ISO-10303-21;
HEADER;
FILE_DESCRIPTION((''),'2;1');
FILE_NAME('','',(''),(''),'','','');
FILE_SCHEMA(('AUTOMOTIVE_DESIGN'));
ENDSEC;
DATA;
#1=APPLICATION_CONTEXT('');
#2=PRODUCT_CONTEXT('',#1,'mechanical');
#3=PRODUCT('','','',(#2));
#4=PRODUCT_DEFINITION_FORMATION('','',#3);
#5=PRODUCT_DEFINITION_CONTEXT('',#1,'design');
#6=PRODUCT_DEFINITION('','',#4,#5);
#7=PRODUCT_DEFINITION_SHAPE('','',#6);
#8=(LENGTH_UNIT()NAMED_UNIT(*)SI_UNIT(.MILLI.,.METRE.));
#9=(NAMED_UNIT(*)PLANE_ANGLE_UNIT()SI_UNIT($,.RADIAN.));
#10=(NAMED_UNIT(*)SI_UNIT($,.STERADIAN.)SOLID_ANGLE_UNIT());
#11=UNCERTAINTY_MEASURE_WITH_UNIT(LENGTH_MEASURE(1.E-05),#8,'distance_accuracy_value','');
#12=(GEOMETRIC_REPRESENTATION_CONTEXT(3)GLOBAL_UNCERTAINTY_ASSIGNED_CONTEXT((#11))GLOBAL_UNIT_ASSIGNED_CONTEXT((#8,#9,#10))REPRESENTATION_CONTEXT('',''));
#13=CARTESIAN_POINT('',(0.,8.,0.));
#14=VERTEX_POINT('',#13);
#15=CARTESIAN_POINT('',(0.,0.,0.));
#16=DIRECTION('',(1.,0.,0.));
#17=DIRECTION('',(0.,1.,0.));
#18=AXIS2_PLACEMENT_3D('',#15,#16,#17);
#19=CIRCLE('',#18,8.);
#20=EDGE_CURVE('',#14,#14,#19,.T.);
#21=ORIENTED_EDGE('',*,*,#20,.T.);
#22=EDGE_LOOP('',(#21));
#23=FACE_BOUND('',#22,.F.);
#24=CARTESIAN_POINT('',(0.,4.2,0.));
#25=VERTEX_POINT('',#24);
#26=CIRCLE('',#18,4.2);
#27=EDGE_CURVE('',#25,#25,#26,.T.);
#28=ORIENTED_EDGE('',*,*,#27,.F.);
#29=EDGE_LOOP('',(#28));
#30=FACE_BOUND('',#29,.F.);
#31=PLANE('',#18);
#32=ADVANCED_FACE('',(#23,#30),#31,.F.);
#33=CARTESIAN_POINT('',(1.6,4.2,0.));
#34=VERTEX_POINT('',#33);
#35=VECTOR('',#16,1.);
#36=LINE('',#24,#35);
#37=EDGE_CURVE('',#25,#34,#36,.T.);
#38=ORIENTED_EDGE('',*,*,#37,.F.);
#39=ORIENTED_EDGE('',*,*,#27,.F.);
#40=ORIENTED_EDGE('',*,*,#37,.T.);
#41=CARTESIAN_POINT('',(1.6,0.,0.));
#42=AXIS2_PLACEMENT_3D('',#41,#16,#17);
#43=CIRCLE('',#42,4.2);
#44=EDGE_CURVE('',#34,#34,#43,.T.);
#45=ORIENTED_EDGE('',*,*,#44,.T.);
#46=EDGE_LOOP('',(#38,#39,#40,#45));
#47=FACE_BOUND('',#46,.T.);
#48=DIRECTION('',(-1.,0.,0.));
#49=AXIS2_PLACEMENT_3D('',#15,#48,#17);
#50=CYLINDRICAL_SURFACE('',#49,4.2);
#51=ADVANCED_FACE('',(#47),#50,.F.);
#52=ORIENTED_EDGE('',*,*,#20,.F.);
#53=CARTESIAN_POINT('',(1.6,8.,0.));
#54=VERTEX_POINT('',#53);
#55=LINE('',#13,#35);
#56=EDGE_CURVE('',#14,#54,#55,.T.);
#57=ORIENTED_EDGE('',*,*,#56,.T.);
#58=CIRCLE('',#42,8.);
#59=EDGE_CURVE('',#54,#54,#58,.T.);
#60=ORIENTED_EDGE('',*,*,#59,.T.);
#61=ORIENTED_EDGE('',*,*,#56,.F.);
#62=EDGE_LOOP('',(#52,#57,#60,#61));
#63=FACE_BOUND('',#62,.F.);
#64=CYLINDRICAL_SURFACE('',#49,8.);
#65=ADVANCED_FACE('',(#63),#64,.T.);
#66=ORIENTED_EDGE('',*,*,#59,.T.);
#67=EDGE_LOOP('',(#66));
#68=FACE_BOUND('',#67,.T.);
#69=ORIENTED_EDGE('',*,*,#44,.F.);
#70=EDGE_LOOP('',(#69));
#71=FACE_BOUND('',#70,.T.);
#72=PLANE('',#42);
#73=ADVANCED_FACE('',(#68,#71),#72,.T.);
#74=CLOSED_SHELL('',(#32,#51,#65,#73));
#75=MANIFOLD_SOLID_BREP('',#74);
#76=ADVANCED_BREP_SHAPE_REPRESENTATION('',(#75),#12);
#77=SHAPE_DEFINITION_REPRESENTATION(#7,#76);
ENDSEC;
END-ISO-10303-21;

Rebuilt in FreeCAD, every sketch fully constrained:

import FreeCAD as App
import Part
import Sketcher

V = App.Vector
Q = App.Units.Quantity

doc = App.newDocument("Part")
body = doc.addObject("PartDesign::Body", "Body")

# Sketch on YZ plane
sketch1 = body.newObject("Sketcher::SketchObject", "Sketch")
sketch1.AttachmentSupport = (doc.getObject("YZ_Plane"), [""])
sketch1.MapMode = "FlatFace"
sketch1.addGeometry(Part.Circle(V(0, 0, 0), V(0, 0, 1), 8), False)
sketch1.addGeometry(Part.Circle(V(0, 0, 0), V(0, 0, 1), 4.2), False)
sketch1.addConstraint(Sketcher.Constraint("Coincident", 0, 3, -1, 1))
sketch1.addConstraint(Sketcher.Constraint("Coincident", 1, 3, -1, 1))
sketch1.addConstraint(Sketcher.Constraint("Diameter", 0, Q("16 mm")))
sketch1.addConstraint(Sketcher.Constraint("Diameter", 1, Q("8.4 mm")))
pad1 = body.newObject("PartDesign::Pad", "Pad")
pad1.Profile = sketch1
pad1.Length = 1.6

doc.recompute()
